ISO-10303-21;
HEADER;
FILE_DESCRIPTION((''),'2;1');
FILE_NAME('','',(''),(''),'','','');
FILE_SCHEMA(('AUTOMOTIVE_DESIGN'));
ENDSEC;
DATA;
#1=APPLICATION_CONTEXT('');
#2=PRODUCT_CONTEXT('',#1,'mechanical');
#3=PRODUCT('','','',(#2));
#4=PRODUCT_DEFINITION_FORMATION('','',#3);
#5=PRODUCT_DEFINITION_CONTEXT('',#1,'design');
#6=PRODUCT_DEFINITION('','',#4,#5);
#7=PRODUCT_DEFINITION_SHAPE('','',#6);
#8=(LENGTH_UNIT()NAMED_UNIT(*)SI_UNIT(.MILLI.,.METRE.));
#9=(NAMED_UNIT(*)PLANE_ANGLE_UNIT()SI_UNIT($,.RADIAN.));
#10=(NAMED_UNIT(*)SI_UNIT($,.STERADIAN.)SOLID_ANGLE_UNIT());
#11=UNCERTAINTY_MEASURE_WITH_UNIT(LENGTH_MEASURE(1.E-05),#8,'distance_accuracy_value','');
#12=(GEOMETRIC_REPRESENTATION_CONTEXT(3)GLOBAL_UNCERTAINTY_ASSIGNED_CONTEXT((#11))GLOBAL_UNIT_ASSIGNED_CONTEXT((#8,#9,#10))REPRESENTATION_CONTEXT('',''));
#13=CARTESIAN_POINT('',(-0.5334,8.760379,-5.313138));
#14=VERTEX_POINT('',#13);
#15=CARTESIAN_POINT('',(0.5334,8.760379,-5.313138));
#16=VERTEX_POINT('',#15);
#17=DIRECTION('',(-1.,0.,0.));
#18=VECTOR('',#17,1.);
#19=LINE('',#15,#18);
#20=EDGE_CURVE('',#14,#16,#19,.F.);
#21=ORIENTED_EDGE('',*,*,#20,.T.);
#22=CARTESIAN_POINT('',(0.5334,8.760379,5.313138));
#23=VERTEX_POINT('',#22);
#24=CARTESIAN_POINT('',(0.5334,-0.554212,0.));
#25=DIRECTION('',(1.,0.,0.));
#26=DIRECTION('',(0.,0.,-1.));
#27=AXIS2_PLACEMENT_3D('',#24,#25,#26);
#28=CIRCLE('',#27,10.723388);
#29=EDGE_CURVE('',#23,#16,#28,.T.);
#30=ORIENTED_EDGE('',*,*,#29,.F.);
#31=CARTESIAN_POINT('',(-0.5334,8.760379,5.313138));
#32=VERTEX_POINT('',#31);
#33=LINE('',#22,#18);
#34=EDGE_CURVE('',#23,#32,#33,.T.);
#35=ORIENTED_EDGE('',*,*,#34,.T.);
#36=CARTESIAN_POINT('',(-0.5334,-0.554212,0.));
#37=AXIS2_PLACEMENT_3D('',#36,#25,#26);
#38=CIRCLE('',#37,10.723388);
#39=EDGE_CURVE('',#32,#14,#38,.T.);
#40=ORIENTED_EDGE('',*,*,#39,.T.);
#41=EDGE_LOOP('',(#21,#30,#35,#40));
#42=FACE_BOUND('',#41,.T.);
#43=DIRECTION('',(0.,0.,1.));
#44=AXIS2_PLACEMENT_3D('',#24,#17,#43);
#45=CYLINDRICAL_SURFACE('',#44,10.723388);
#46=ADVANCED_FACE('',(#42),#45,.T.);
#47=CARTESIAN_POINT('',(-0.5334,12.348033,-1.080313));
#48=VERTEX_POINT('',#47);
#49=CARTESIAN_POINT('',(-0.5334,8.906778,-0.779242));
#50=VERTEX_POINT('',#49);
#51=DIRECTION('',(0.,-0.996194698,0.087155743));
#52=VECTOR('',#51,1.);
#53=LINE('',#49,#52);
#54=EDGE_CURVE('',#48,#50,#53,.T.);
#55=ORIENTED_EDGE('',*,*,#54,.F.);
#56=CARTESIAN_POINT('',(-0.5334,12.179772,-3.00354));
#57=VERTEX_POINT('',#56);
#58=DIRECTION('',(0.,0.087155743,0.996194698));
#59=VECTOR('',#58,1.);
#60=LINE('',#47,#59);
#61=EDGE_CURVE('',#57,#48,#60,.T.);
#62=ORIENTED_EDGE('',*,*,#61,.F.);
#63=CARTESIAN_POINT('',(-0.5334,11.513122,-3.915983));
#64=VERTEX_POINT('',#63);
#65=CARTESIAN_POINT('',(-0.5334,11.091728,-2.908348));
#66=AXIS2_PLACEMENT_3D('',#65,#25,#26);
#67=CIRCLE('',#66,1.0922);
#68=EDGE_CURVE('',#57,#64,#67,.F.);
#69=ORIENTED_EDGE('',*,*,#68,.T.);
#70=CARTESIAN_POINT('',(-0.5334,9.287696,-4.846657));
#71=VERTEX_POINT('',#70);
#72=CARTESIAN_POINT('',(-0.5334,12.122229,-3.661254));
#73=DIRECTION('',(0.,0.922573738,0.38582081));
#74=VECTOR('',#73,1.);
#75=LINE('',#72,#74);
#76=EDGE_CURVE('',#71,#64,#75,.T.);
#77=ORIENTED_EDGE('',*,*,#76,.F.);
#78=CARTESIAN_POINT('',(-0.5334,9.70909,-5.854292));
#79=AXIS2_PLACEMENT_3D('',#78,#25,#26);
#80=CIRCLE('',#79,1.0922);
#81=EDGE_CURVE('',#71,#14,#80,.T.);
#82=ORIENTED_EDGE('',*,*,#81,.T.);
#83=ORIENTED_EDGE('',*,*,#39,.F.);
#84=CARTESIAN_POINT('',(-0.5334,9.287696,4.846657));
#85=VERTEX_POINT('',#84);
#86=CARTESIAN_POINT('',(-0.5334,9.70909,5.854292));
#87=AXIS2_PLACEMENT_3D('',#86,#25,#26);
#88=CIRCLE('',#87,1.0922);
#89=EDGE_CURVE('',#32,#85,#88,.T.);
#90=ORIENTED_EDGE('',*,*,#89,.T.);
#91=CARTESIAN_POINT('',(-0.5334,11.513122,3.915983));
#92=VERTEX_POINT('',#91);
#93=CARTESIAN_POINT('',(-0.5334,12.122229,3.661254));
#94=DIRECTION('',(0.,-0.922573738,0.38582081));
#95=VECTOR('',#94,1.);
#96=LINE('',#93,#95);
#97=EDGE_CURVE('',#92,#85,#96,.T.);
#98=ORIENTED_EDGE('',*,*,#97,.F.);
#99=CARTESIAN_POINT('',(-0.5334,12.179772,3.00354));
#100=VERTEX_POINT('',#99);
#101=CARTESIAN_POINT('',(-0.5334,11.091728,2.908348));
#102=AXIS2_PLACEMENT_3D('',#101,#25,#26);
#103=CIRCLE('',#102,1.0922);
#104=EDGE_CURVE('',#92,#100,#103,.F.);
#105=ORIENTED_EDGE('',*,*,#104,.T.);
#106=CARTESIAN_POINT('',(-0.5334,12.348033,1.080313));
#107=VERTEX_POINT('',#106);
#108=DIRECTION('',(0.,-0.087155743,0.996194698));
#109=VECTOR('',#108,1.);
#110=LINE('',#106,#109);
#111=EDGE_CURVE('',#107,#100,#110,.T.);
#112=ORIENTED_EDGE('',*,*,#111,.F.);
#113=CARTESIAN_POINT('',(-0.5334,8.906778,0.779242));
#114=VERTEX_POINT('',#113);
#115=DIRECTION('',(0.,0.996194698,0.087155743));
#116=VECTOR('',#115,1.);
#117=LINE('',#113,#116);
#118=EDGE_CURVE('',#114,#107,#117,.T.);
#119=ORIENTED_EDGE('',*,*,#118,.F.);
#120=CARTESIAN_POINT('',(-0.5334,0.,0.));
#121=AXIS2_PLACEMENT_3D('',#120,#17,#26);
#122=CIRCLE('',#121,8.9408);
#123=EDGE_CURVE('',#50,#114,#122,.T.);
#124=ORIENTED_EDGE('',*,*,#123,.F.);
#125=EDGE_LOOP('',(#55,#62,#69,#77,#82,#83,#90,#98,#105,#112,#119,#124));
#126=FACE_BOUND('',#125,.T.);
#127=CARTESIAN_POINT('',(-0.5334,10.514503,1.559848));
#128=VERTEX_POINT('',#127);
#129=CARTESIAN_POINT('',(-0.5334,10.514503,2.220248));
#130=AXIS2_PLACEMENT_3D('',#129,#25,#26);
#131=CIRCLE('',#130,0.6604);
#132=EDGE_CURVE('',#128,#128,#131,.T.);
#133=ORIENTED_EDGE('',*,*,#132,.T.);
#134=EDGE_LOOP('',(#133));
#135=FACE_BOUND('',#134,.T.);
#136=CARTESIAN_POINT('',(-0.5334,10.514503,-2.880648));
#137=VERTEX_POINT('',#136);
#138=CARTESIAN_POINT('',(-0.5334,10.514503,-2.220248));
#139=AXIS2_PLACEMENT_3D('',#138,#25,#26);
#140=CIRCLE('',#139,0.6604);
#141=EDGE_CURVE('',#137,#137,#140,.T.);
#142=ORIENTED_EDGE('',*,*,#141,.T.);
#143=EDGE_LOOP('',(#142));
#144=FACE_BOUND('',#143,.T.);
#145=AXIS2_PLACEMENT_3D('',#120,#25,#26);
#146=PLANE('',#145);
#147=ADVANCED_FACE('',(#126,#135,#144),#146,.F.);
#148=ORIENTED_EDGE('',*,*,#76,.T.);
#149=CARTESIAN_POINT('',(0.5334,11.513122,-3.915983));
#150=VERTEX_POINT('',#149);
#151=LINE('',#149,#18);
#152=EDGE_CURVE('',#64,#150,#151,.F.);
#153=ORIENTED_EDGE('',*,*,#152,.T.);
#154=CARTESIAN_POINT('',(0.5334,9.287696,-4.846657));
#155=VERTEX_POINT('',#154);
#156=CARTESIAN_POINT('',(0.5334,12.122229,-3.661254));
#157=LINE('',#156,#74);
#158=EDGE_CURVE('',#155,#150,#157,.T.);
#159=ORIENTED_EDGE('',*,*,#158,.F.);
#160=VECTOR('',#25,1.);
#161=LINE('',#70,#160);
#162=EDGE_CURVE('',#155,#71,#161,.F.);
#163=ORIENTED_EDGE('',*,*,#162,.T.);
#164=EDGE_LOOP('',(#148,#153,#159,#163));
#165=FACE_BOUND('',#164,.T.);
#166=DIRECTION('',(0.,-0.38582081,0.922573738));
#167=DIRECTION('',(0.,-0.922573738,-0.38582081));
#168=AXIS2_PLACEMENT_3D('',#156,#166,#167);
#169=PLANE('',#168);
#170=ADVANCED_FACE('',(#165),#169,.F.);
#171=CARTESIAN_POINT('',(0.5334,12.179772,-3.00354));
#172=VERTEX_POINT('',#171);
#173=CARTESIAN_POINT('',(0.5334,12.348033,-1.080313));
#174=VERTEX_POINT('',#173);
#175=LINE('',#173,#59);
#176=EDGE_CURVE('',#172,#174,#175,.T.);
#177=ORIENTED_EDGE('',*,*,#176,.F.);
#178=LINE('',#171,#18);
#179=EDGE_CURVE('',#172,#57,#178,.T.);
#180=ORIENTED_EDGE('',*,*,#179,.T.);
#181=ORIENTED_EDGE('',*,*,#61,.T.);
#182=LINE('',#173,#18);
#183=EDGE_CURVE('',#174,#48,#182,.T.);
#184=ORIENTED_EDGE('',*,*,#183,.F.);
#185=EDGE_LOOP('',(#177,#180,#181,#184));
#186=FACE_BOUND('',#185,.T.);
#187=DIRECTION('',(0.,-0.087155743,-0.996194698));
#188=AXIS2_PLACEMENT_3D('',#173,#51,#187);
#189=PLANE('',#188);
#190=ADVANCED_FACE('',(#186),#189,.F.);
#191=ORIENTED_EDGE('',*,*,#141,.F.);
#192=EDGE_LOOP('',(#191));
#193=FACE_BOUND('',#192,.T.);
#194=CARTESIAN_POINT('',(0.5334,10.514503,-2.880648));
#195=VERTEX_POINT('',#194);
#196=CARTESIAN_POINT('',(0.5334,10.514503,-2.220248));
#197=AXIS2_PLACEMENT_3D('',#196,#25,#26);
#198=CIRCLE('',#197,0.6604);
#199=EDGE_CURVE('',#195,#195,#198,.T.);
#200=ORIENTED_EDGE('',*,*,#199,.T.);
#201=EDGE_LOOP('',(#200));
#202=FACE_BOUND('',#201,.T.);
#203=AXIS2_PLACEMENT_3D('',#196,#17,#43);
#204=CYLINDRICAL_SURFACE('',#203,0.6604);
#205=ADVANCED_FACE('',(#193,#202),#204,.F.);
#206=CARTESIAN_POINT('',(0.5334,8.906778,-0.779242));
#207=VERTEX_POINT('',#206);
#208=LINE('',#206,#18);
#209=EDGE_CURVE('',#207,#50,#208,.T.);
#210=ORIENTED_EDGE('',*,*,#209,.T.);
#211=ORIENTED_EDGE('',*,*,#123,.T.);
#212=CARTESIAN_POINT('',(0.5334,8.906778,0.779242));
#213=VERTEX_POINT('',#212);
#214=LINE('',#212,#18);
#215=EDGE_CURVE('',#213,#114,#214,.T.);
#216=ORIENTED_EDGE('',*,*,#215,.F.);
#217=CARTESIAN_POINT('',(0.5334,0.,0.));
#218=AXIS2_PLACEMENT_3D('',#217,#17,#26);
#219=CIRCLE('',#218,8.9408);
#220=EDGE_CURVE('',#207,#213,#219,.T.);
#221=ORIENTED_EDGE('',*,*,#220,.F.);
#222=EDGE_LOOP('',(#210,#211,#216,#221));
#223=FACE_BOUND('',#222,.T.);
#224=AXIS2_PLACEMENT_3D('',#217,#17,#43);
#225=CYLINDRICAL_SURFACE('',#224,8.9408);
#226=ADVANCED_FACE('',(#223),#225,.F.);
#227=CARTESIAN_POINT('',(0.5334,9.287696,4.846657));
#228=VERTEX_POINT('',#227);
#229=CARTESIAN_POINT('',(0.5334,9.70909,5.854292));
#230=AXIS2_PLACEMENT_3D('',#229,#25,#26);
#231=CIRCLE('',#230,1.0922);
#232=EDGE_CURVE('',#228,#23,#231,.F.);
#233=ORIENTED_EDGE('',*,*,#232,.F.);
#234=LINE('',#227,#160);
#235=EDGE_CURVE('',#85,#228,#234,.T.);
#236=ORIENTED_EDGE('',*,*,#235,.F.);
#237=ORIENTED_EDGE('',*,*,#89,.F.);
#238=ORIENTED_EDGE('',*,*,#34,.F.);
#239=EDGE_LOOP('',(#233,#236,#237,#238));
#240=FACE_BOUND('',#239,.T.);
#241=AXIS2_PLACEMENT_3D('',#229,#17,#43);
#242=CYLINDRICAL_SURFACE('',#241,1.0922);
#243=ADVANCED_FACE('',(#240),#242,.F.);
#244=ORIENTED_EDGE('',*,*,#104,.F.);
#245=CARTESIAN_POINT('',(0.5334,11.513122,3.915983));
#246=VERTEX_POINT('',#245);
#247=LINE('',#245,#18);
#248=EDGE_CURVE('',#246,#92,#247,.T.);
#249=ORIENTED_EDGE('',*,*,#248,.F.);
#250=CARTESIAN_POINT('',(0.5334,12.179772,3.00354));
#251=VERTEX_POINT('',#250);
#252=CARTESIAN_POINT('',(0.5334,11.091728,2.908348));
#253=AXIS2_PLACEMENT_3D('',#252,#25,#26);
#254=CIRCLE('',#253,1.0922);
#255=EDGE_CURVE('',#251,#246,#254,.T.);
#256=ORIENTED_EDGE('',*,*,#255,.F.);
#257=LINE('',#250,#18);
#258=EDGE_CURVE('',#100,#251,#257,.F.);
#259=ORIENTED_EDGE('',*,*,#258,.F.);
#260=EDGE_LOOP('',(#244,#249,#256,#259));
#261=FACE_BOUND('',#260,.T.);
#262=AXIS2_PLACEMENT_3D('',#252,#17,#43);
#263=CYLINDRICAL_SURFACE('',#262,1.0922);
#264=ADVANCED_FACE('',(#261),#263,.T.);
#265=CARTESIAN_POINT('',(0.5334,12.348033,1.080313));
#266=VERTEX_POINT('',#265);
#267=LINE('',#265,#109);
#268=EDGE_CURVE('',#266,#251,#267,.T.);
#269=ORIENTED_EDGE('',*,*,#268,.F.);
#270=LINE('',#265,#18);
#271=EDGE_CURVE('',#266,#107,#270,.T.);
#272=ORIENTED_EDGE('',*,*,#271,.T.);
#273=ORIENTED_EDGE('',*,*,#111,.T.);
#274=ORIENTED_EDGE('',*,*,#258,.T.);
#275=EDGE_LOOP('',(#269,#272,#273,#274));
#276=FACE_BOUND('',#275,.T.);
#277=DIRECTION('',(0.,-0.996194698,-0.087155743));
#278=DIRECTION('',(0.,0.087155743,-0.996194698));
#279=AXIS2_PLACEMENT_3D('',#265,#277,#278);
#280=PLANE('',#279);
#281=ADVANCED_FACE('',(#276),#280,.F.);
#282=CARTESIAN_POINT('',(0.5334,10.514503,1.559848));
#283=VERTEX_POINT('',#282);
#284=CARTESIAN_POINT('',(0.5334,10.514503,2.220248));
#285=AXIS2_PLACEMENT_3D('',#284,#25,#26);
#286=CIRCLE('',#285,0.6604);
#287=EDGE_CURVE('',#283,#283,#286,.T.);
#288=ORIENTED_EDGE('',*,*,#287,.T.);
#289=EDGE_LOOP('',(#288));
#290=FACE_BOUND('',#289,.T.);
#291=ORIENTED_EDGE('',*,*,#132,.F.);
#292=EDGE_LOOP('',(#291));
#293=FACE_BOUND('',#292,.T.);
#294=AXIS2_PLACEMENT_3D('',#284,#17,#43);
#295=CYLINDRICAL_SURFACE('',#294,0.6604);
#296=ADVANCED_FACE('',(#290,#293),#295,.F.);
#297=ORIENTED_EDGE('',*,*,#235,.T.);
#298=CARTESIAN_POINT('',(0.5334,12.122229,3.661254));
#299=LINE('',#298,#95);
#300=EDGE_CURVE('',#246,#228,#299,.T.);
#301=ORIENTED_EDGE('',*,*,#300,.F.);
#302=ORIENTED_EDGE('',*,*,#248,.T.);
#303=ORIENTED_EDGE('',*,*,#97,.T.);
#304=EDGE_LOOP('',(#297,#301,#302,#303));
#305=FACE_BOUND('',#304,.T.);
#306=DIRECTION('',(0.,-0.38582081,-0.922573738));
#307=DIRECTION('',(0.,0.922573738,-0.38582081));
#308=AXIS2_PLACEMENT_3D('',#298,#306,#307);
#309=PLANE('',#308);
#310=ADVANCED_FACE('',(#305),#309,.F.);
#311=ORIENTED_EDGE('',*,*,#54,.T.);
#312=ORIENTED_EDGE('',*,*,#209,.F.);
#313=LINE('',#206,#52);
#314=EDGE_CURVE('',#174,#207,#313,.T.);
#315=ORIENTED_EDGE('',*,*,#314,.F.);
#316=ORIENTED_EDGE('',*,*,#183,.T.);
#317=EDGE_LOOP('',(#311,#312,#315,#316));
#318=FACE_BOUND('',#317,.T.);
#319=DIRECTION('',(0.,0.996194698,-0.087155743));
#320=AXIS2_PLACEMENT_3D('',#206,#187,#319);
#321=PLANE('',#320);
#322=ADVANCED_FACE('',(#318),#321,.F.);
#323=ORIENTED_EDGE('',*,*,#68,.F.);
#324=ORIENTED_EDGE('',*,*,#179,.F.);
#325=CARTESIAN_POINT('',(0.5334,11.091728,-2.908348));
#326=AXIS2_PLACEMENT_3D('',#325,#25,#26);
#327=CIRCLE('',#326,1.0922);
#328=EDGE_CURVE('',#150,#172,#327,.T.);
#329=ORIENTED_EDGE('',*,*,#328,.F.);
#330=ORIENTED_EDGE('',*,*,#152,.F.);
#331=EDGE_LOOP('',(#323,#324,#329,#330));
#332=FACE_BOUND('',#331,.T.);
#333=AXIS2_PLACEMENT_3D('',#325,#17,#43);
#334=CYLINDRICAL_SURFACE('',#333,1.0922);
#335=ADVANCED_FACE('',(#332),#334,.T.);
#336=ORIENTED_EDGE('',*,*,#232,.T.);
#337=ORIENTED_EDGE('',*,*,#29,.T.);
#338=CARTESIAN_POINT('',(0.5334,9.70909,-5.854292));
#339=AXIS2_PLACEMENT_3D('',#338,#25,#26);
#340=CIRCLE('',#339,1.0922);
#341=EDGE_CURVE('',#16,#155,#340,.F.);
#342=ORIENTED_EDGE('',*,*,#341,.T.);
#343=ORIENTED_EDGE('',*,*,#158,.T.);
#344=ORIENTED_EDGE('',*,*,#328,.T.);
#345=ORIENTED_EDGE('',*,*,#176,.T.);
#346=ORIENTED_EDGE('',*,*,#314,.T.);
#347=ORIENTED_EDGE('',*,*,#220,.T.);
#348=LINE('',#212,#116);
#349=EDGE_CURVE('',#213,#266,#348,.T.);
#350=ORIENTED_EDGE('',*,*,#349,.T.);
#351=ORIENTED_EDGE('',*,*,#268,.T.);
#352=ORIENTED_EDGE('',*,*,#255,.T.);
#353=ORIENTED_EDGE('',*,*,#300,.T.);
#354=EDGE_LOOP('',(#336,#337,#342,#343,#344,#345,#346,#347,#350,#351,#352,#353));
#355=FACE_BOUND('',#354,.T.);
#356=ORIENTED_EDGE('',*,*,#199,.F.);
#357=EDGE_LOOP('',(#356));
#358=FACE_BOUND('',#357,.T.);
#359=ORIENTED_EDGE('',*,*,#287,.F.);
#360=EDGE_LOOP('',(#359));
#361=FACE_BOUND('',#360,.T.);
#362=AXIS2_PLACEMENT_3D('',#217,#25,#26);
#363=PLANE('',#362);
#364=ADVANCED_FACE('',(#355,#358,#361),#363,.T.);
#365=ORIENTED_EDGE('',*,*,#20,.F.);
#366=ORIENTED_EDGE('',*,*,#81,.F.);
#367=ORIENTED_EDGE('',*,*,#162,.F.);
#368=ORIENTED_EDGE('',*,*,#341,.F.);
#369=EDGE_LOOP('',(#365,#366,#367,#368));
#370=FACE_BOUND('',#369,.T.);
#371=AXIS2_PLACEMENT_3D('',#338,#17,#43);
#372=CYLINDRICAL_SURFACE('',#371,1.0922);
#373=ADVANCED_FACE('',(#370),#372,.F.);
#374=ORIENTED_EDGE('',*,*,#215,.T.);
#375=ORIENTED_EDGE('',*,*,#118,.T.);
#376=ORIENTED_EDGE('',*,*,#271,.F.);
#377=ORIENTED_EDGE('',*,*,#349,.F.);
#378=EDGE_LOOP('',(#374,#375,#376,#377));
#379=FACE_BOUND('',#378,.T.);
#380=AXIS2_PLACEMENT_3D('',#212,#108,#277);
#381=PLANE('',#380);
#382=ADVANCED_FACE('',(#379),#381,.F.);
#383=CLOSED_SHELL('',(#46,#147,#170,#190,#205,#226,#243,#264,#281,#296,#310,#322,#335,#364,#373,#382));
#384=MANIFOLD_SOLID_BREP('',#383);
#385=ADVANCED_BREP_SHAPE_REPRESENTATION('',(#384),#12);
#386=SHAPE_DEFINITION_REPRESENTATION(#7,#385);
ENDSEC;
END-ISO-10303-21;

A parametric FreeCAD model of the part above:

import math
import FreeCAD as App
import Part
import Sketcher

V = App.Vector
Q = App.Units.Quantity


def edges_at(feature, points):
    """Names of the edges that pass closest to the given points."""
    edges = feature.Shape.Edges
    near = lambda p: min(range(len(edges)), key=lambda i: edges[i].distToShape(Part.Vertex(*p))[0])
    return sorted({f"Edge{near(p) + 1}" for p in points})

doc = App.newDocument("Part")
body = doc.addObject("PartDesign::Body", "Body")

# Sketch on YZ plane
sketch1 = doc.addObject("Sketcher::SketchObject", "Sketch")
body.addObject(sketch1)
sketch1.AttachmentSupport = (doc.YZ_Plane, [""])
sketch1.MapMode = "FlatFace"
sketch1.addGeometry(Part.LineSegment(V(8.9, 0.8, 0), V(12.3, 1.1, 0)), False)
sketch1.addGeometry(Part.LineSegment(V(12.3, 1.1, 0), V(12.1, 3.7, 0)), False)
sketch1.addGeometry(Part.LineSegment(V(12.1, 3.7, 0), V(8.9, 5, 0)), False)
sketch1.addGeometry(Part.ArcOfCircle(Part.Circle(V(-0.6, 0, 0), V(0, 0, 1), 10.7), math.radians(28), math.radians(332)), False)
sketch1.addGeometry(Part.LineSegment(V(8.9, -5, 0), V(12.1, -3.7, 0)), False)
sketch1.addGeometry(Part.LineSegment(V(12.1, -3.7, 0), V(12.3, -1.1, 0)), False)
sketch1.addGeometry(Part.LineSegment(V(12.3, -1.1, 0), V(8.9, -0.8, 0)), False)
sketch1.addGeometry(Part.ArcOfCircle(Part.Circle(V(0, 0, 0), V(0, 0, 1), 8.9), math.radians(5), math.radians(355)), False)
sketch1.addGeometry(Part.Circle(V(10.5, 2.2, 0), V(0, 0, 1), 0.7), False)
sketch1.addGeometry(Part.Circle(V(10.5, -2.2, 0), V(0, 0, 1), 0.7), False)
sketch1.addConstraint(Sketcher.Constraint("Coincident", 0, 2, 1, 1))
sketch1.addConstraint(Sketcher.Constraint("Coincident", 1, 2, 2, 1))
sketch1.addConstraint(Sketcher.Constraint("Coincident", 2, 2, 3, 1))
sketch1.addConstraint(Sketcher.Constraint("Coincident", 3, 2, 4, 1))
sketch1.addConstraint(Sketcher.Constraint("Coincident", 4, 2, 5, 1))
sketch1.addConstraint(Sketcher.Constraint("Coincident", 5, 2, 6, 1))
sketch1.addConstraint(Sketcher.Constraint("Coincident", 6, 2, 7, 2))
sketch1.addConstraint(Sketcher.Constraint("Coincident", 7, 1, 0, 1))
sketch1.addConstraint(Sketcher.Constraint("Coincident", 7, 3, -1, 1))
sketch1.addConstraint(Sketcher.Constraint("Equal", 8, 9))
sketch1.addConstraint(Sketcher.Constraint("Symmetric", 8, 3, 9, 3, -1))
sketch1.addConstraint(Sketcher.Constraint("Symmetric", 2, 2, 3, 2, -1))
sketch1.addConstraint(Sketcher.Constraint("Symmetric", 1, 2, 4, 2, -1))
sketch1.addConstraint(Sketcher.Constraint("Symmetric", 0, 2, 5, 2, -1))
sketch1.addConstraint(Sketcher.Constraint("Perpendicular", 0, 1))
sketch1.addConstraint(Sketcher.Constraint("Perpendicular", 5, 6))
sketch1.addConstraint(Sketcher.Constraint("Equal", 0, 2))
sketch1.addConstraint(Sketcher.Constraint("Diameter", 8, Q("0.052 in")))
sketch1.addConstraint(Sketcher.Constraint("Angle", 0, Q("5 deg")))
sketch1.addConstraint(Sketcher.Constraint("Radius", 7, Q("0.352 in")))
sketch1.addConstraint(Sketcher.Constraint("Distance", 0, Q("0.136 in")))
sketch1.addConstraint(Sketcher.Constraint("Distance", 1, Q("0.102 in")))
sketch1.addConstraint(Sketcher.Constraint("Radius", 3, Q("10.723388 mm")))
sketch1.addConstraint(Sketcher.Constraint("DistanceY", -1, 1, 8, 3, Q("2.220248 mm")))
sketch1.addConstraint(Sketcher.Constraint("DistanceX", -1, 1, 1, 2, Q("12.122229 mm")))
sketch1.addConstraint(Sketcher.Constraint("DistanceX", -1, 1, 2, 2, Q("8.935291 mm")))
sketch1.addConstraint(Sketcher.Constraint("DistanceX", 8, 3, 0, 2, Q("1.833529 mm")))
pad1 = doc.addObject("PartDesign::Pad", "Pad")
body.addObject(pad1)
pad1.Profile = sketch1
pad1.Length = Q("0.042 in")
pad1.Midplane = True
doc.recompute()

fillet = doc.addObject("PartDesign::Fillet", "Fillet")
body.addObject(fillet)
fillet.Base = (pad1, edges_at(pad1, [
    (0, 12.122, -3.661),
    (0, 8.935, -4.994),
    (0, 8.935, 4.994),
    (0, 12.122, 3.661),
]))
fillet.Radius = Q("0.043 in")

doc.recompute()
